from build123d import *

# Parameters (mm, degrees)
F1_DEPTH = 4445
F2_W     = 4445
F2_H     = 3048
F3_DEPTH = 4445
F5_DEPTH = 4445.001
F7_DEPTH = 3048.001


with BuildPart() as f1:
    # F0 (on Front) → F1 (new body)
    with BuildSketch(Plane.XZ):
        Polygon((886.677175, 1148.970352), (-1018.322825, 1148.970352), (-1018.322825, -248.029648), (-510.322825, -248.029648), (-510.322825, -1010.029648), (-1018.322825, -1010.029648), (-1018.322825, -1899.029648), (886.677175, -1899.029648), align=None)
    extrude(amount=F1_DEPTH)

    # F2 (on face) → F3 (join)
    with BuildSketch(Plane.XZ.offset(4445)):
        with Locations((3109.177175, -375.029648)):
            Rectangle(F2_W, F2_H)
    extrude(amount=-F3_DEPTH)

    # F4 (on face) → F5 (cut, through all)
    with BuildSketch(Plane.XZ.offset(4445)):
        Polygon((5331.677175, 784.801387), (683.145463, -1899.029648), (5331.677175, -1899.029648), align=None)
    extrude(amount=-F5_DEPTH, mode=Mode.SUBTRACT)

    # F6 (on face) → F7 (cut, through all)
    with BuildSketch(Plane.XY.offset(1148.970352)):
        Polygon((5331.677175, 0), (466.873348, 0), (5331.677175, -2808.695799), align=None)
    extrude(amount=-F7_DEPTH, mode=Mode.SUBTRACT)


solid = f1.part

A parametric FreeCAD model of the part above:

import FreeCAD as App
import Part
import Sketcher
from FreeCAD import Vector
Q = App.Units.Quantity

doc = App.newDocument("Part")
body = doc.addObject("PartDesign::Body", "Body")

# Sketch on XZ plane
sketch1 = doc.addObject("Sketcher::SketchObject", "Sketch")
body.addObject(sketch1)
sketch1.AttachmentSupport = (doc.XZ_Plane, [""])
sketch1.MapMode = "FlatFace"
sketch1.addGeometry([
    Part.LineSegment(Vector(887, 1149, 0), Vector(-1018, 1149, 0)),  # 0
    Part.LineSegment(Vector(-1018, 1149, 0), Vector(-1018, -248, 0)),  # 1
    Part.LineSegment(Vector(-1018, -248, 0), Vector(-510, -248, 0)),  # 2
    Part.LineSegment(Vector(-510, -248, 0), Vector(-510, -1010, 0)),  # 3
    Part.LineSegment(Vector(-510, -1010, 0), Vector(-1018, -1010, 0)),  # 4
    Part.LineSegment(Vector(-1018, -1010, 0), Vector(-1018, -1899, 0)),  # 5
    Part.LineSegment(Vector(-1018, -1899, 0), Vector(887, -1899, 0)),  # 6
    Part.LineSegment(Vector(887, -1899, 0), Vector(887, 1149, 0)),  # 7
], False)
sketch1.addConstraint([
    Sketcher.Constraint("Coincident", 0, 2, 1, 1),
    Sketcher.Constraint("Coincident", 1, 2, 2, 1),
    Sketcher.Constraint("Coincident", 2, 2, 3, 1),
    Sketcher.Constraint("Coincident", 3, 2, 4, 1),
    Sketcher.Constraint("Coincident", 4, 2, 5, 1),
    Sketcher.Constraint("Coincident", 5, 2, 6, 1),
    Sketcher.Constraint("Coincident", 6, 2, 7, 1),
    Sketcher.Constraint("Coincident", 7, 2, 0, 1),
    Sketcher.Constraint("Horizontal", 0),
    Sketcher.Constraint("Vertical", 1),
    Sketcher.Constraint("Horizontal", 2),
    Sketcher.Constraint("Vertical", 3),
    Sketcher.Constraint("Horizontal", 4),
    Sketcher.Constraint("Vertical", 5),
    Sketcher.Constraint("Horizontal", 6),
    Sketcher.Constraint("Vertical", 7),
    Sketcher.Constraint("Vertical", 1, 2, 4, 2),
    Sketcher.Constraint("DistanceX", 0, 2, 0, 1, Q("75 in")),
    Sketcher.Constraint("DistanceX", 2, 1, 2, 2, Q("20 in")),
    Sketcher.Constraint("DistanceY", 1, 2, 1, 1, Q("55 in")),
    Sketcher.Constraint("DistanceY", 3, 2, 3, 1, Q("30 in")),
    Sketcher.Constraint("DistanceY", 5, 2, 5, 1, Q("35 in")),
    Sketcher.Constraint("DistanceY", -1, 1, 0, 2, 1148.970352),
    Sketcher.Constraint("DistanceX", 0, 2, -1, 1, 1018.322825),
])
pad1 = doc.addObject("PartDesign::Pad", "Pad")
body.addObject(pad1)
pad1.Profile = sketch1
pad1.Length = Q("175 in")

# Sketch on XZ plane
sketch2 = doc.addObject("Sketcher::SketchObject", "Sketch001")
body.addObject(sketch2)
sketch2.AttachmentSupport = (doc.XZ_Plane, [""])
sketch2.MapMode = "FlatFace"
sketch2.AttachmentOffset = App.Placement(Vector(0, 0, 175 * 25.4), App.Rotation())
sketch2.addGeometry([
    Part.LineSegment(Vector(887, 1149, 0), Vector(887, -1899, 0)),
    Part.LineSegment(Vector(887, -1899, 0), Vector(5332, -1899, 0)),
    Part.LineSegment(Vector(5332, -1899, 0), Vector(5332, 1149, 0)),
    Part.LineSegment(Vector(5332, 1149, 0), Vector(887, 1149, 0)),
], False)
sketch2.addConstraint([
    Sketcher.Constraint("Coincident", 0, 2, 1, 1),
    Sketcher.Constraint("Coincident", 1, 2, 2, 1),
    Sketcher.Constraint("Coincident", 2, 2, 3, 1),
    Sketcher.Constraint("Coincident", 3, 2, 0, 1),
    Sketcher.Constraint("Vertical", 0),
    Sketcher.Constraint("Horizontal", 1),
    Sketcher.Constraint("Vertical", 2),
    Sketcher.Constraint("Horizontal", 3),
    Sketcher.Constraint("DistanceX", 1, 1, 1, 2, Q("175 in")),
    Sketcher.Constraint("DistanceY", 0, 2, 0, 1, Q("120 in")),
    Sketcher.Constraint("DistanceY", 0, 2, -1, 1, 1899.029648),
    Sketcher.Constraint("DistanceX", -1, 1, 0, 2, 886.677175),
])
pad2 = doc.addObject("PartDesign::Pad", "Pad001")
body.addObject(pad2)
pad2.Profile = sketch2
pad2.Length = Q("175 in")
pad2.Reversed = True

# Sketch on XZ plane
sketch3 = doc.addObject("Sketcher::SketchObject", "Sketch002")
body.addObject(sketch3)
sketch3.AttachmentSupport = (doc.XZ_Plane, [""])
sketch3.MapMode = "FlatFace"
sketch3.AttachmentOffset = App.Placement(Vector(0, 0, 175 * 25.4), App.Rotation())
sketch3.addGeometry([
    Part.LineSegment(Vector(5332, 785, 0), Vector(683, -1899, 0)),
    Part.LineSegment(Vector(683, -1899, 0), Vector(5332, -1899, 0)),
    Part.LineSegment(Vector(5332, -1899, 0), Vector(5332, 785, 0)),
], False)
sketch3.addConstraint([
    Sketcher.Constraint("Coincident", 0, 2, 1, 1),
    Sketcher.Constraint("Coincident", 1, 2, 2, 1),
    Sketcher.Constraint("Coincident", 2, 2, 0, 1),
    Sketcher.Constraint("Horizontal", 1),
    Sketcher.Constraint("Vertical", 2),
    Sketcher.Constraint("Angle", 0, Q("-150 deg")),
    Sketcher.Constraint("DistanceX", 1, 1, 1, 2, 4648.531712),
    Sketcher.Constraint("DistanceY", 0, 2, -1, 1, 1899.029648),
    Sketcher.Constraint("DistanceX", -1, 1, 0, 2, 683.145463),
])
pocket1 = doc.addObject("PartDesign::Pocket", "Pocket")
body.addObject(pocket1)
pocket1.Profile = sketch3
pocket1.Type = "ThroughAll"

# Sketch on XY plane
sketch4 = doc.addObject("Sketcher::SketchObject", "Sketch003")
body.addObject(sketch4)
sketch4.AttachmentSupport = (doc.XY_Plane, [""])
sketch4.MapMode = "FlatFace"
sketch4.AttachmentOffset = App.Placement(Vector(0, 0, 1148.970352), App.Rotation())
sketch4.addGeometry([
    Part.LineSegment(Vector(5332, 0, 0), Vector(467, 0, 0)),
    Part.LineSegment(Vector(467, 0, 0), Vector(5332, -2809, 0)),
    Part.LineSegment(Vector(5332, -2809, 0), Vector(5332, 0, 0)),
], False)
sketch4.addConstraint([
    Sketcher.Constraint("Coincident", 0, 2, 1, 1),
    Sketcher.Constraint("Coincident", 1, 2, 2, 1),
    Sketcher.Constraint("Coincident", 2, 2, 0, 1),
    Sketcher.Constraint("Horizontal", 0),
    Sketcher.Constraint("Vertical", 2),
    Sketcher.Constraint("PointOnObject", 0, 2, -1),
    Sketcher.Constraint("Angle", 1, Q("-30 deg")),
    Sketcher.Constraint("DistanceY", 2, 1, 2, 2, 2808.695799),
    Sketcher.Constraint("DistanceX", -1, 1, 0, 2, 466.873348),
])
pocket2 = doc.addObject("PartDesign::Pocket", "Pocket001")
body.addObject(pocket2)
pocket2.Profile = sketch4
pocket2.Type = "ThroughAll"

doc.recompute()
